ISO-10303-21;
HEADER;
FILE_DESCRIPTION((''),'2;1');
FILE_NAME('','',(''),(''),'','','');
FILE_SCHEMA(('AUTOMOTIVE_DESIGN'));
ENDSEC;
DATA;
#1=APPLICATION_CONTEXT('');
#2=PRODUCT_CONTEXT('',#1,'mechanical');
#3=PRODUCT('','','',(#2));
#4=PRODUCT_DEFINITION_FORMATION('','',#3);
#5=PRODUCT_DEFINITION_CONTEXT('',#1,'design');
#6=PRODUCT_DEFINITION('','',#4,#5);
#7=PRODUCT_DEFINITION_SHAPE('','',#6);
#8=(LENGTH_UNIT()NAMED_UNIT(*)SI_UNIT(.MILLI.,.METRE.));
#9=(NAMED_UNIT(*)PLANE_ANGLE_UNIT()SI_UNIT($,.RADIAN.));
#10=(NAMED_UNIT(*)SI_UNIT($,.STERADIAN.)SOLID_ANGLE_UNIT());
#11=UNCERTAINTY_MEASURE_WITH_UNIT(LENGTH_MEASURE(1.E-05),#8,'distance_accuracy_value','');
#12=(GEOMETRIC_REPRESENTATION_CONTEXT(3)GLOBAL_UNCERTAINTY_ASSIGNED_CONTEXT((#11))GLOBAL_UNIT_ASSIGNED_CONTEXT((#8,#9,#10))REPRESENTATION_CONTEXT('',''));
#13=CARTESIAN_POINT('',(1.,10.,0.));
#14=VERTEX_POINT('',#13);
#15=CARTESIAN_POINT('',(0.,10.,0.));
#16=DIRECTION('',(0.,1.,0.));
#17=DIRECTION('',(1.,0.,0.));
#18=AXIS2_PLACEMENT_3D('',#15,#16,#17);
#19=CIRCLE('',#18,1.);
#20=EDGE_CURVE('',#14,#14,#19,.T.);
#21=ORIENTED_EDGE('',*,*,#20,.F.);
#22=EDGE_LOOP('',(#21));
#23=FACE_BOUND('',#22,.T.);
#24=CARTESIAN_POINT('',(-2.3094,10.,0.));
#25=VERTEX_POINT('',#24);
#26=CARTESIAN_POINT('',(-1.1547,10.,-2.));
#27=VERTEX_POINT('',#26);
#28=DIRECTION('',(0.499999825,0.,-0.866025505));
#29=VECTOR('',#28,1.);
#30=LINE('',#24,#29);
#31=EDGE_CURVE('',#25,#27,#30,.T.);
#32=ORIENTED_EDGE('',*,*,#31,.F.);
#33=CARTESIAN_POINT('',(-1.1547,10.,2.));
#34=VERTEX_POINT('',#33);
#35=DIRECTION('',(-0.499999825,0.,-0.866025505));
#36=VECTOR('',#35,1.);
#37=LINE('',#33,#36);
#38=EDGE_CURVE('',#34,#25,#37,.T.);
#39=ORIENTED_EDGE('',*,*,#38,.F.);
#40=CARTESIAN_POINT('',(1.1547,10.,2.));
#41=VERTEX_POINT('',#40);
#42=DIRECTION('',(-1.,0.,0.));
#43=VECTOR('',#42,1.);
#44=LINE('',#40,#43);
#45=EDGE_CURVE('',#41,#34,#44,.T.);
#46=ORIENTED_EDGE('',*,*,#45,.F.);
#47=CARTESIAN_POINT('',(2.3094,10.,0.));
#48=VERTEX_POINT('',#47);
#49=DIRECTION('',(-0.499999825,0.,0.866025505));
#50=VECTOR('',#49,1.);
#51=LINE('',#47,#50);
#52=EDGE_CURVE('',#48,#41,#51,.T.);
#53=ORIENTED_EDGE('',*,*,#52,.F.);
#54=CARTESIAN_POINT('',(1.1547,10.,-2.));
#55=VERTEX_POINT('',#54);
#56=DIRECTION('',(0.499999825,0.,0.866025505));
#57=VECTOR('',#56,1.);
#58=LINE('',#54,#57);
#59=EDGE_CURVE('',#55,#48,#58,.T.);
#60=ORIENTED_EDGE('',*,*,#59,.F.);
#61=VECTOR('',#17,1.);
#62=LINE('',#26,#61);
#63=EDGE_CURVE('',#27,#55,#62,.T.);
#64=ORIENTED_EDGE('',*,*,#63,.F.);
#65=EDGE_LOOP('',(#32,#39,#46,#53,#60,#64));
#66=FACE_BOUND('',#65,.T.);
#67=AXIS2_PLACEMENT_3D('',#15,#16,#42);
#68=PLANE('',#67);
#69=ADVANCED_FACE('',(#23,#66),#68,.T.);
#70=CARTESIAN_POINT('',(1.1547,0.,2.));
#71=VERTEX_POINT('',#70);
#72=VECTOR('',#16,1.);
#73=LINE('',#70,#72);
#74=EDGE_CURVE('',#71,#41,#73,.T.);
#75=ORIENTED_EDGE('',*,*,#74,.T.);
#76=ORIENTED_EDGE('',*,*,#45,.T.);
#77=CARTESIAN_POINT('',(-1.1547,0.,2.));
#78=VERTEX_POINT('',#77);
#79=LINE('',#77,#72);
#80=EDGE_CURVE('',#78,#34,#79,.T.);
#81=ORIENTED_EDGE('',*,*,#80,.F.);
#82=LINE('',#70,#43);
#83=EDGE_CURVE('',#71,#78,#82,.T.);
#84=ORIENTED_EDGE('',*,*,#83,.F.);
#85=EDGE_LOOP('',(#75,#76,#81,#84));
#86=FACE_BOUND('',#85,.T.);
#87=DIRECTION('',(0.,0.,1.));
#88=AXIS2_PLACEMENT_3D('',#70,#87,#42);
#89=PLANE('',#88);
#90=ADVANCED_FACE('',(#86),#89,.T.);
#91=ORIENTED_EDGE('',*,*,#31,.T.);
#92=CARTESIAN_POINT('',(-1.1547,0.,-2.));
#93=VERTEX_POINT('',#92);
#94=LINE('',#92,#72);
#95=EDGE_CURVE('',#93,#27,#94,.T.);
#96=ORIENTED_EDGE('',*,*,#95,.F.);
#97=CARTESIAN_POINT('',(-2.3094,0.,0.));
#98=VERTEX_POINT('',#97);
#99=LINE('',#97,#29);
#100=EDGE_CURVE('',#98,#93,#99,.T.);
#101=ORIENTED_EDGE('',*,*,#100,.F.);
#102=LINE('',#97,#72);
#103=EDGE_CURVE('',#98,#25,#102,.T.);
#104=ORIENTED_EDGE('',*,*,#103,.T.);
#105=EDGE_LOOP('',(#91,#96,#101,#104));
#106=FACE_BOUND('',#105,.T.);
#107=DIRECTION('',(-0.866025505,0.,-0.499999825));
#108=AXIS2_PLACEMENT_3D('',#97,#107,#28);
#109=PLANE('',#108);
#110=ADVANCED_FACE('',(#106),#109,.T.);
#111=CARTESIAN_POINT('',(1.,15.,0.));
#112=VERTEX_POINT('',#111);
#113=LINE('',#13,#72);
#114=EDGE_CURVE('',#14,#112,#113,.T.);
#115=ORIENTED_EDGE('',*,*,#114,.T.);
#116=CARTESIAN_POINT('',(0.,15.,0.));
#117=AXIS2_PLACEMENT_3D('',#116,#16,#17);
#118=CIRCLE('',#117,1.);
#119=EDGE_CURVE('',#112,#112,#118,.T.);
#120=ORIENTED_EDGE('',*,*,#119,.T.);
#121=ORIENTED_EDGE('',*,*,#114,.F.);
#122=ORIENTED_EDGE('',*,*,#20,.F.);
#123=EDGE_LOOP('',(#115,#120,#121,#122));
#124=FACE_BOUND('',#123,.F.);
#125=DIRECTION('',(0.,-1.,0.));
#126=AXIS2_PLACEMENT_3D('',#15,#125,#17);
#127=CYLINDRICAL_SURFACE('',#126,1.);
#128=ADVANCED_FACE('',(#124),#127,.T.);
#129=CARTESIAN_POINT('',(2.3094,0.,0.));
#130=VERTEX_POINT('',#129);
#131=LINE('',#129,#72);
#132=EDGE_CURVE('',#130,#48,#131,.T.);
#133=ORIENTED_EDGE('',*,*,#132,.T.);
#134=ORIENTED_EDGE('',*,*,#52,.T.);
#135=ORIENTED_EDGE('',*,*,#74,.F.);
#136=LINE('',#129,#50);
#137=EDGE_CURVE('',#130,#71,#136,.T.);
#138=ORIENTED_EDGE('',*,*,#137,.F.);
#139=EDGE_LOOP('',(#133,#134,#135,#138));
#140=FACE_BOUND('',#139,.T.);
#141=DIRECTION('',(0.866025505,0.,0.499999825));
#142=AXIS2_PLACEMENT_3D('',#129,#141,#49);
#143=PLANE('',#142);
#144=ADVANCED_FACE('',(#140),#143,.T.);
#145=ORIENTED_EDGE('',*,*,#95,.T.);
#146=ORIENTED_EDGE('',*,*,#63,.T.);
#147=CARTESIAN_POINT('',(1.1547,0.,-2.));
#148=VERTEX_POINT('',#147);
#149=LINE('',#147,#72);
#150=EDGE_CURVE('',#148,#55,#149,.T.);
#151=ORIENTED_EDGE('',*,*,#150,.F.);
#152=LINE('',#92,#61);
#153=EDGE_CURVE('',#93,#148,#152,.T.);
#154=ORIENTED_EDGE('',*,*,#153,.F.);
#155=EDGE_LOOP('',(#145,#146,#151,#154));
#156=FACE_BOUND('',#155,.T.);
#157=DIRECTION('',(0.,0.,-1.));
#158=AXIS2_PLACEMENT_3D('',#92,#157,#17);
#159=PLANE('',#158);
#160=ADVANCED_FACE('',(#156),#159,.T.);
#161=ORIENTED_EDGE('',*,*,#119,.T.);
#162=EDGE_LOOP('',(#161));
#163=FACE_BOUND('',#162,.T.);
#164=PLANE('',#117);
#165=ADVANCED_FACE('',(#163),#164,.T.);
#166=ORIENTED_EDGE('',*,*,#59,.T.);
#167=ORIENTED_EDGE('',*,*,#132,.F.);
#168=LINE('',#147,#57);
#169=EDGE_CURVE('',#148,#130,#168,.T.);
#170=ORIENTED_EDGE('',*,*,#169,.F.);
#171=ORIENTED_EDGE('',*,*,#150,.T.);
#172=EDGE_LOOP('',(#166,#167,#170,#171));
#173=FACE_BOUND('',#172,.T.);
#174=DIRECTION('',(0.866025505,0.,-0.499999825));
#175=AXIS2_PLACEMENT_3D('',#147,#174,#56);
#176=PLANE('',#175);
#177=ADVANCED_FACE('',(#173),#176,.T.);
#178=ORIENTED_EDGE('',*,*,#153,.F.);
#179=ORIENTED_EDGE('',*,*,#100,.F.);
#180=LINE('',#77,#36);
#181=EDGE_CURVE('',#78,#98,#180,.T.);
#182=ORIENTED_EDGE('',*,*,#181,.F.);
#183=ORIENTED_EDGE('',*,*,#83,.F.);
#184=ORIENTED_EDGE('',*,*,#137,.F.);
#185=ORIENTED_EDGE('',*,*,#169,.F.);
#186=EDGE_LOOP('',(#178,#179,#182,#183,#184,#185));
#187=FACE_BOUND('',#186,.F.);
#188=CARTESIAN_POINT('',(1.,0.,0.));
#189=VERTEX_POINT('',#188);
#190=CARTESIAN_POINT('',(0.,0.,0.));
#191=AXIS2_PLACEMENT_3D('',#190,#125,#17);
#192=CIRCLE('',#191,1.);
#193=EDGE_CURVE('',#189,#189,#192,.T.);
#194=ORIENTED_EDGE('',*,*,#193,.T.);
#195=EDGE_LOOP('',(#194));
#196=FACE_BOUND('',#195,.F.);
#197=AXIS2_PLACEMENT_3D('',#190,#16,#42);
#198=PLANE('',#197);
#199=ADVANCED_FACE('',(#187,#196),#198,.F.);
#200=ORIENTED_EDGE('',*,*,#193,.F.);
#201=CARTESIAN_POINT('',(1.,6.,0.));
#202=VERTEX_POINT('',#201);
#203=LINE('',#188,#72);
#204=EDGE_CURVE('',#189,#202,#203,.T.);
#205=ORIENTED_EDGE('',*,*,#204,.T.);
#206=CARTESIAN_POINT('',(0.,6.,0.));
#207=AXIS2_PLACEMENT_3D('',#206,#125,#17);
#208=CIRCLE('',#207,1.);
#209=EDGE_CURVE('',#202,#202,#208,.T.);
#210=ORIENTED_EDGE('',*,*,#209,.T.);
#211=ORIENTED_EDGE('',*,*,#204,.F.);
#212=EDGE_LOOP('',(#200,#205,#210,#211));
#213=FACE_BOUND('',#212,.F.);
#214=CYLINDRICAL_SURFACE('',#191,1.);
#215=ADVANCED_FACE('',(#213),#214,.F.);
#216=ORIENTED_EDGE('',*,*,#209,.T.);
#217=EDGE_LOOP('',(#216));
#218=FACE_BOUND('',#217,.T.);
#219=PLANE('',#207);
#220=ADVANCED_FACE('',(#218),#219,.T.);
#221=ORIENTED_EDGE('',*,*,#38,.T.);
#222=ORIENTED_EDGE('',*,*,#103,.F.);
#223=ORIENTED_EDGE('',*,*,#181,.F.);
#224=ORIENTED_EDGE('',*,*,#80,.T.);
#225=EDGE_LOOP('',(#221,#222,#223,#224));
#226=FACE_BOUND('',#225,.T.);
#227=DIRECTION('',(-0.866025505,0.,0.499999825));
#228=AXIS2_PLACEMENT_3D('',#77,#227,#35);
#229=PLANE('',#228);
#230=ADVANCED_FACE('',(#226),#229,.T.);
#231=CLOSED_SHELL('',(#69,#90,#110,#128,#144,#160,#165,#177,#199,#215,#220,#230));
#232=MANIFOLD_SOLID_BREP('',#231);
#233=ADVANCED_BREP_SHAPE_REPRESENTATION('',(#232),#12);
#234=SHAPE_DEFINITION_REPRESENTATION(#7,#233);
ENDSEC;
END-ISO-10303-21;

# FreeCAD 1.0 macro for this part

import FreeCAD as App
import Part
import Sketcher
from FreeCAD import Vector
Q = App.Units.Quantity

doc = App.newDocument("Part")
body = doc.addObject("PartDesign::Body", "Body")

# Sketch on XZ plane
sketch1 = body.newObject("Sketcher::SketchObject", "Sketch")
sketch1.AttachmentSupport = (doc.getObject("XZ_Plane"), [""])
sketch1.MapMode = "FlatFace"
sketch1.addGeometry([
    Part.LineSegment(Vector(-1.1547, -2, 0), Vector(-2.3094, 0, 0)),  # 0
    Part.LineSegment(Vector(-2.3094, 0, 0), Vector(-1.1547, 2, 0)),  # 1
    Part.LineSegment(Vector(-1.1547, 2, 0), Vector(1.1547, 2, 0)),  # 2
    Part.LineSegment(Vector(1.1547, 2, 0), Vector(2.3094, 0, 0)),  # 3
    Part.LineSegment(Vector(2.3094, 0, 0), Vector(1.1547, -2, 0)),  # 4
    Part.LineSegment(Vector(1.1547, -2, 0), Vector(-1.1547, -2, 0)),  # 5
], False)
sketch1.addConstraint([
    Sketcher.Constraint("Coincident", 0, 2, 1, 1),
    Sketcher.Constraint("Coincident", 1, 2, 2, 1),
    Sketcher.Constraint("Coincident", 2, 2, 3, 1),
    Sketcher.Constraint("Coincident", 3, 2, 4, 1),
    Sketcher.Constraint("Coincident", 4, 2, 5, 1),
    Sketcher.Constraint("Coincident", 5, 2, 0, 1),
    Sketcher.Constraint("Horizontal", 2),
    Sketcher.Constraint("Horizontal", 5),
    Sketcher.Constraint("Symmetric", 0, 2, 3, 2, -1, 1),
    Sketcher.Constraint("Symmetric", 1, 2, 4, 2, -1, 1),
    Sketcher.Constraint("PointOnObject", 0, 2, -1),
    Sketcher.Constraint("Parallel", 0, 3),
    Sketcher.Constraint("Vertical", 2, 2, 4, 2),
    Sketcher.Constraint("DistanceY", 4, 2, 2, 2, Q("4 mm")),
    Sketcher.Constraint("Angle", 0, Q("120 deg")),
    Sketcher.Constraint("DistanceX", 2, 1, 2, 2, Q("2.3094 mm")),
])
pad1 = body.newObject("PartDesign::Pad", "Pad")
pad1.Profile = sketch1
pad1.Length = 10
pad1.Reversed = True

# Sketch on XZ plane
sketch2 = body.newObject("Sketcher::SketchObject", "Sketch001")
sketch2.AttachmentSupport = (doc.getObject("XZ_Plane"), [""])
sketch2.MapMode = "FlatFace"
sketch2.AttachmentOffset = App.Placement(Vector(0, 0, -10), App.Rotation())
sketch2.addGeometry(Part.Circle(Vector(0, 0, 0), Vector(0, 0, 1), 1), False)
sketch2.addConstraint([
    Sketcher.Constraint("Coincident", 0, 3, -1, 1),
    Sketcher.Constraint("Diameter", 0, Q("2 mm")),
])
pad2 = body.newObject("PartDesign::Pad", "Pad001")
pad2.Profile = sketch2
pad2.Length = 5
pad2.Reversed = True

# Sketch on XZ plane
sketch3 = body.newObject("Sketcher::SketchObject", "Sketch002")
sketch3.AttachmentSupport = (doc.getObject("XZ_Plane"), [""])
sketch3.MapMode = "FlatFace"
sketch3.addGeometry(Part.Circle(Vector(0, 0, 0), Vector(0, 0, 1), 1), False)
sketch3.addConstraint([
    Sketcher.Constraint("Coincident", 0, 3, -1, 1),
    Sketcher.Constraint("Diameter", 0, Q("2 mm")),
])
pocket1 = body.newObject("PartDesign::Pocket", "Pocket")
pocket1.Profile = sketch3
pocket1.Length = 6

doc.recompute()
